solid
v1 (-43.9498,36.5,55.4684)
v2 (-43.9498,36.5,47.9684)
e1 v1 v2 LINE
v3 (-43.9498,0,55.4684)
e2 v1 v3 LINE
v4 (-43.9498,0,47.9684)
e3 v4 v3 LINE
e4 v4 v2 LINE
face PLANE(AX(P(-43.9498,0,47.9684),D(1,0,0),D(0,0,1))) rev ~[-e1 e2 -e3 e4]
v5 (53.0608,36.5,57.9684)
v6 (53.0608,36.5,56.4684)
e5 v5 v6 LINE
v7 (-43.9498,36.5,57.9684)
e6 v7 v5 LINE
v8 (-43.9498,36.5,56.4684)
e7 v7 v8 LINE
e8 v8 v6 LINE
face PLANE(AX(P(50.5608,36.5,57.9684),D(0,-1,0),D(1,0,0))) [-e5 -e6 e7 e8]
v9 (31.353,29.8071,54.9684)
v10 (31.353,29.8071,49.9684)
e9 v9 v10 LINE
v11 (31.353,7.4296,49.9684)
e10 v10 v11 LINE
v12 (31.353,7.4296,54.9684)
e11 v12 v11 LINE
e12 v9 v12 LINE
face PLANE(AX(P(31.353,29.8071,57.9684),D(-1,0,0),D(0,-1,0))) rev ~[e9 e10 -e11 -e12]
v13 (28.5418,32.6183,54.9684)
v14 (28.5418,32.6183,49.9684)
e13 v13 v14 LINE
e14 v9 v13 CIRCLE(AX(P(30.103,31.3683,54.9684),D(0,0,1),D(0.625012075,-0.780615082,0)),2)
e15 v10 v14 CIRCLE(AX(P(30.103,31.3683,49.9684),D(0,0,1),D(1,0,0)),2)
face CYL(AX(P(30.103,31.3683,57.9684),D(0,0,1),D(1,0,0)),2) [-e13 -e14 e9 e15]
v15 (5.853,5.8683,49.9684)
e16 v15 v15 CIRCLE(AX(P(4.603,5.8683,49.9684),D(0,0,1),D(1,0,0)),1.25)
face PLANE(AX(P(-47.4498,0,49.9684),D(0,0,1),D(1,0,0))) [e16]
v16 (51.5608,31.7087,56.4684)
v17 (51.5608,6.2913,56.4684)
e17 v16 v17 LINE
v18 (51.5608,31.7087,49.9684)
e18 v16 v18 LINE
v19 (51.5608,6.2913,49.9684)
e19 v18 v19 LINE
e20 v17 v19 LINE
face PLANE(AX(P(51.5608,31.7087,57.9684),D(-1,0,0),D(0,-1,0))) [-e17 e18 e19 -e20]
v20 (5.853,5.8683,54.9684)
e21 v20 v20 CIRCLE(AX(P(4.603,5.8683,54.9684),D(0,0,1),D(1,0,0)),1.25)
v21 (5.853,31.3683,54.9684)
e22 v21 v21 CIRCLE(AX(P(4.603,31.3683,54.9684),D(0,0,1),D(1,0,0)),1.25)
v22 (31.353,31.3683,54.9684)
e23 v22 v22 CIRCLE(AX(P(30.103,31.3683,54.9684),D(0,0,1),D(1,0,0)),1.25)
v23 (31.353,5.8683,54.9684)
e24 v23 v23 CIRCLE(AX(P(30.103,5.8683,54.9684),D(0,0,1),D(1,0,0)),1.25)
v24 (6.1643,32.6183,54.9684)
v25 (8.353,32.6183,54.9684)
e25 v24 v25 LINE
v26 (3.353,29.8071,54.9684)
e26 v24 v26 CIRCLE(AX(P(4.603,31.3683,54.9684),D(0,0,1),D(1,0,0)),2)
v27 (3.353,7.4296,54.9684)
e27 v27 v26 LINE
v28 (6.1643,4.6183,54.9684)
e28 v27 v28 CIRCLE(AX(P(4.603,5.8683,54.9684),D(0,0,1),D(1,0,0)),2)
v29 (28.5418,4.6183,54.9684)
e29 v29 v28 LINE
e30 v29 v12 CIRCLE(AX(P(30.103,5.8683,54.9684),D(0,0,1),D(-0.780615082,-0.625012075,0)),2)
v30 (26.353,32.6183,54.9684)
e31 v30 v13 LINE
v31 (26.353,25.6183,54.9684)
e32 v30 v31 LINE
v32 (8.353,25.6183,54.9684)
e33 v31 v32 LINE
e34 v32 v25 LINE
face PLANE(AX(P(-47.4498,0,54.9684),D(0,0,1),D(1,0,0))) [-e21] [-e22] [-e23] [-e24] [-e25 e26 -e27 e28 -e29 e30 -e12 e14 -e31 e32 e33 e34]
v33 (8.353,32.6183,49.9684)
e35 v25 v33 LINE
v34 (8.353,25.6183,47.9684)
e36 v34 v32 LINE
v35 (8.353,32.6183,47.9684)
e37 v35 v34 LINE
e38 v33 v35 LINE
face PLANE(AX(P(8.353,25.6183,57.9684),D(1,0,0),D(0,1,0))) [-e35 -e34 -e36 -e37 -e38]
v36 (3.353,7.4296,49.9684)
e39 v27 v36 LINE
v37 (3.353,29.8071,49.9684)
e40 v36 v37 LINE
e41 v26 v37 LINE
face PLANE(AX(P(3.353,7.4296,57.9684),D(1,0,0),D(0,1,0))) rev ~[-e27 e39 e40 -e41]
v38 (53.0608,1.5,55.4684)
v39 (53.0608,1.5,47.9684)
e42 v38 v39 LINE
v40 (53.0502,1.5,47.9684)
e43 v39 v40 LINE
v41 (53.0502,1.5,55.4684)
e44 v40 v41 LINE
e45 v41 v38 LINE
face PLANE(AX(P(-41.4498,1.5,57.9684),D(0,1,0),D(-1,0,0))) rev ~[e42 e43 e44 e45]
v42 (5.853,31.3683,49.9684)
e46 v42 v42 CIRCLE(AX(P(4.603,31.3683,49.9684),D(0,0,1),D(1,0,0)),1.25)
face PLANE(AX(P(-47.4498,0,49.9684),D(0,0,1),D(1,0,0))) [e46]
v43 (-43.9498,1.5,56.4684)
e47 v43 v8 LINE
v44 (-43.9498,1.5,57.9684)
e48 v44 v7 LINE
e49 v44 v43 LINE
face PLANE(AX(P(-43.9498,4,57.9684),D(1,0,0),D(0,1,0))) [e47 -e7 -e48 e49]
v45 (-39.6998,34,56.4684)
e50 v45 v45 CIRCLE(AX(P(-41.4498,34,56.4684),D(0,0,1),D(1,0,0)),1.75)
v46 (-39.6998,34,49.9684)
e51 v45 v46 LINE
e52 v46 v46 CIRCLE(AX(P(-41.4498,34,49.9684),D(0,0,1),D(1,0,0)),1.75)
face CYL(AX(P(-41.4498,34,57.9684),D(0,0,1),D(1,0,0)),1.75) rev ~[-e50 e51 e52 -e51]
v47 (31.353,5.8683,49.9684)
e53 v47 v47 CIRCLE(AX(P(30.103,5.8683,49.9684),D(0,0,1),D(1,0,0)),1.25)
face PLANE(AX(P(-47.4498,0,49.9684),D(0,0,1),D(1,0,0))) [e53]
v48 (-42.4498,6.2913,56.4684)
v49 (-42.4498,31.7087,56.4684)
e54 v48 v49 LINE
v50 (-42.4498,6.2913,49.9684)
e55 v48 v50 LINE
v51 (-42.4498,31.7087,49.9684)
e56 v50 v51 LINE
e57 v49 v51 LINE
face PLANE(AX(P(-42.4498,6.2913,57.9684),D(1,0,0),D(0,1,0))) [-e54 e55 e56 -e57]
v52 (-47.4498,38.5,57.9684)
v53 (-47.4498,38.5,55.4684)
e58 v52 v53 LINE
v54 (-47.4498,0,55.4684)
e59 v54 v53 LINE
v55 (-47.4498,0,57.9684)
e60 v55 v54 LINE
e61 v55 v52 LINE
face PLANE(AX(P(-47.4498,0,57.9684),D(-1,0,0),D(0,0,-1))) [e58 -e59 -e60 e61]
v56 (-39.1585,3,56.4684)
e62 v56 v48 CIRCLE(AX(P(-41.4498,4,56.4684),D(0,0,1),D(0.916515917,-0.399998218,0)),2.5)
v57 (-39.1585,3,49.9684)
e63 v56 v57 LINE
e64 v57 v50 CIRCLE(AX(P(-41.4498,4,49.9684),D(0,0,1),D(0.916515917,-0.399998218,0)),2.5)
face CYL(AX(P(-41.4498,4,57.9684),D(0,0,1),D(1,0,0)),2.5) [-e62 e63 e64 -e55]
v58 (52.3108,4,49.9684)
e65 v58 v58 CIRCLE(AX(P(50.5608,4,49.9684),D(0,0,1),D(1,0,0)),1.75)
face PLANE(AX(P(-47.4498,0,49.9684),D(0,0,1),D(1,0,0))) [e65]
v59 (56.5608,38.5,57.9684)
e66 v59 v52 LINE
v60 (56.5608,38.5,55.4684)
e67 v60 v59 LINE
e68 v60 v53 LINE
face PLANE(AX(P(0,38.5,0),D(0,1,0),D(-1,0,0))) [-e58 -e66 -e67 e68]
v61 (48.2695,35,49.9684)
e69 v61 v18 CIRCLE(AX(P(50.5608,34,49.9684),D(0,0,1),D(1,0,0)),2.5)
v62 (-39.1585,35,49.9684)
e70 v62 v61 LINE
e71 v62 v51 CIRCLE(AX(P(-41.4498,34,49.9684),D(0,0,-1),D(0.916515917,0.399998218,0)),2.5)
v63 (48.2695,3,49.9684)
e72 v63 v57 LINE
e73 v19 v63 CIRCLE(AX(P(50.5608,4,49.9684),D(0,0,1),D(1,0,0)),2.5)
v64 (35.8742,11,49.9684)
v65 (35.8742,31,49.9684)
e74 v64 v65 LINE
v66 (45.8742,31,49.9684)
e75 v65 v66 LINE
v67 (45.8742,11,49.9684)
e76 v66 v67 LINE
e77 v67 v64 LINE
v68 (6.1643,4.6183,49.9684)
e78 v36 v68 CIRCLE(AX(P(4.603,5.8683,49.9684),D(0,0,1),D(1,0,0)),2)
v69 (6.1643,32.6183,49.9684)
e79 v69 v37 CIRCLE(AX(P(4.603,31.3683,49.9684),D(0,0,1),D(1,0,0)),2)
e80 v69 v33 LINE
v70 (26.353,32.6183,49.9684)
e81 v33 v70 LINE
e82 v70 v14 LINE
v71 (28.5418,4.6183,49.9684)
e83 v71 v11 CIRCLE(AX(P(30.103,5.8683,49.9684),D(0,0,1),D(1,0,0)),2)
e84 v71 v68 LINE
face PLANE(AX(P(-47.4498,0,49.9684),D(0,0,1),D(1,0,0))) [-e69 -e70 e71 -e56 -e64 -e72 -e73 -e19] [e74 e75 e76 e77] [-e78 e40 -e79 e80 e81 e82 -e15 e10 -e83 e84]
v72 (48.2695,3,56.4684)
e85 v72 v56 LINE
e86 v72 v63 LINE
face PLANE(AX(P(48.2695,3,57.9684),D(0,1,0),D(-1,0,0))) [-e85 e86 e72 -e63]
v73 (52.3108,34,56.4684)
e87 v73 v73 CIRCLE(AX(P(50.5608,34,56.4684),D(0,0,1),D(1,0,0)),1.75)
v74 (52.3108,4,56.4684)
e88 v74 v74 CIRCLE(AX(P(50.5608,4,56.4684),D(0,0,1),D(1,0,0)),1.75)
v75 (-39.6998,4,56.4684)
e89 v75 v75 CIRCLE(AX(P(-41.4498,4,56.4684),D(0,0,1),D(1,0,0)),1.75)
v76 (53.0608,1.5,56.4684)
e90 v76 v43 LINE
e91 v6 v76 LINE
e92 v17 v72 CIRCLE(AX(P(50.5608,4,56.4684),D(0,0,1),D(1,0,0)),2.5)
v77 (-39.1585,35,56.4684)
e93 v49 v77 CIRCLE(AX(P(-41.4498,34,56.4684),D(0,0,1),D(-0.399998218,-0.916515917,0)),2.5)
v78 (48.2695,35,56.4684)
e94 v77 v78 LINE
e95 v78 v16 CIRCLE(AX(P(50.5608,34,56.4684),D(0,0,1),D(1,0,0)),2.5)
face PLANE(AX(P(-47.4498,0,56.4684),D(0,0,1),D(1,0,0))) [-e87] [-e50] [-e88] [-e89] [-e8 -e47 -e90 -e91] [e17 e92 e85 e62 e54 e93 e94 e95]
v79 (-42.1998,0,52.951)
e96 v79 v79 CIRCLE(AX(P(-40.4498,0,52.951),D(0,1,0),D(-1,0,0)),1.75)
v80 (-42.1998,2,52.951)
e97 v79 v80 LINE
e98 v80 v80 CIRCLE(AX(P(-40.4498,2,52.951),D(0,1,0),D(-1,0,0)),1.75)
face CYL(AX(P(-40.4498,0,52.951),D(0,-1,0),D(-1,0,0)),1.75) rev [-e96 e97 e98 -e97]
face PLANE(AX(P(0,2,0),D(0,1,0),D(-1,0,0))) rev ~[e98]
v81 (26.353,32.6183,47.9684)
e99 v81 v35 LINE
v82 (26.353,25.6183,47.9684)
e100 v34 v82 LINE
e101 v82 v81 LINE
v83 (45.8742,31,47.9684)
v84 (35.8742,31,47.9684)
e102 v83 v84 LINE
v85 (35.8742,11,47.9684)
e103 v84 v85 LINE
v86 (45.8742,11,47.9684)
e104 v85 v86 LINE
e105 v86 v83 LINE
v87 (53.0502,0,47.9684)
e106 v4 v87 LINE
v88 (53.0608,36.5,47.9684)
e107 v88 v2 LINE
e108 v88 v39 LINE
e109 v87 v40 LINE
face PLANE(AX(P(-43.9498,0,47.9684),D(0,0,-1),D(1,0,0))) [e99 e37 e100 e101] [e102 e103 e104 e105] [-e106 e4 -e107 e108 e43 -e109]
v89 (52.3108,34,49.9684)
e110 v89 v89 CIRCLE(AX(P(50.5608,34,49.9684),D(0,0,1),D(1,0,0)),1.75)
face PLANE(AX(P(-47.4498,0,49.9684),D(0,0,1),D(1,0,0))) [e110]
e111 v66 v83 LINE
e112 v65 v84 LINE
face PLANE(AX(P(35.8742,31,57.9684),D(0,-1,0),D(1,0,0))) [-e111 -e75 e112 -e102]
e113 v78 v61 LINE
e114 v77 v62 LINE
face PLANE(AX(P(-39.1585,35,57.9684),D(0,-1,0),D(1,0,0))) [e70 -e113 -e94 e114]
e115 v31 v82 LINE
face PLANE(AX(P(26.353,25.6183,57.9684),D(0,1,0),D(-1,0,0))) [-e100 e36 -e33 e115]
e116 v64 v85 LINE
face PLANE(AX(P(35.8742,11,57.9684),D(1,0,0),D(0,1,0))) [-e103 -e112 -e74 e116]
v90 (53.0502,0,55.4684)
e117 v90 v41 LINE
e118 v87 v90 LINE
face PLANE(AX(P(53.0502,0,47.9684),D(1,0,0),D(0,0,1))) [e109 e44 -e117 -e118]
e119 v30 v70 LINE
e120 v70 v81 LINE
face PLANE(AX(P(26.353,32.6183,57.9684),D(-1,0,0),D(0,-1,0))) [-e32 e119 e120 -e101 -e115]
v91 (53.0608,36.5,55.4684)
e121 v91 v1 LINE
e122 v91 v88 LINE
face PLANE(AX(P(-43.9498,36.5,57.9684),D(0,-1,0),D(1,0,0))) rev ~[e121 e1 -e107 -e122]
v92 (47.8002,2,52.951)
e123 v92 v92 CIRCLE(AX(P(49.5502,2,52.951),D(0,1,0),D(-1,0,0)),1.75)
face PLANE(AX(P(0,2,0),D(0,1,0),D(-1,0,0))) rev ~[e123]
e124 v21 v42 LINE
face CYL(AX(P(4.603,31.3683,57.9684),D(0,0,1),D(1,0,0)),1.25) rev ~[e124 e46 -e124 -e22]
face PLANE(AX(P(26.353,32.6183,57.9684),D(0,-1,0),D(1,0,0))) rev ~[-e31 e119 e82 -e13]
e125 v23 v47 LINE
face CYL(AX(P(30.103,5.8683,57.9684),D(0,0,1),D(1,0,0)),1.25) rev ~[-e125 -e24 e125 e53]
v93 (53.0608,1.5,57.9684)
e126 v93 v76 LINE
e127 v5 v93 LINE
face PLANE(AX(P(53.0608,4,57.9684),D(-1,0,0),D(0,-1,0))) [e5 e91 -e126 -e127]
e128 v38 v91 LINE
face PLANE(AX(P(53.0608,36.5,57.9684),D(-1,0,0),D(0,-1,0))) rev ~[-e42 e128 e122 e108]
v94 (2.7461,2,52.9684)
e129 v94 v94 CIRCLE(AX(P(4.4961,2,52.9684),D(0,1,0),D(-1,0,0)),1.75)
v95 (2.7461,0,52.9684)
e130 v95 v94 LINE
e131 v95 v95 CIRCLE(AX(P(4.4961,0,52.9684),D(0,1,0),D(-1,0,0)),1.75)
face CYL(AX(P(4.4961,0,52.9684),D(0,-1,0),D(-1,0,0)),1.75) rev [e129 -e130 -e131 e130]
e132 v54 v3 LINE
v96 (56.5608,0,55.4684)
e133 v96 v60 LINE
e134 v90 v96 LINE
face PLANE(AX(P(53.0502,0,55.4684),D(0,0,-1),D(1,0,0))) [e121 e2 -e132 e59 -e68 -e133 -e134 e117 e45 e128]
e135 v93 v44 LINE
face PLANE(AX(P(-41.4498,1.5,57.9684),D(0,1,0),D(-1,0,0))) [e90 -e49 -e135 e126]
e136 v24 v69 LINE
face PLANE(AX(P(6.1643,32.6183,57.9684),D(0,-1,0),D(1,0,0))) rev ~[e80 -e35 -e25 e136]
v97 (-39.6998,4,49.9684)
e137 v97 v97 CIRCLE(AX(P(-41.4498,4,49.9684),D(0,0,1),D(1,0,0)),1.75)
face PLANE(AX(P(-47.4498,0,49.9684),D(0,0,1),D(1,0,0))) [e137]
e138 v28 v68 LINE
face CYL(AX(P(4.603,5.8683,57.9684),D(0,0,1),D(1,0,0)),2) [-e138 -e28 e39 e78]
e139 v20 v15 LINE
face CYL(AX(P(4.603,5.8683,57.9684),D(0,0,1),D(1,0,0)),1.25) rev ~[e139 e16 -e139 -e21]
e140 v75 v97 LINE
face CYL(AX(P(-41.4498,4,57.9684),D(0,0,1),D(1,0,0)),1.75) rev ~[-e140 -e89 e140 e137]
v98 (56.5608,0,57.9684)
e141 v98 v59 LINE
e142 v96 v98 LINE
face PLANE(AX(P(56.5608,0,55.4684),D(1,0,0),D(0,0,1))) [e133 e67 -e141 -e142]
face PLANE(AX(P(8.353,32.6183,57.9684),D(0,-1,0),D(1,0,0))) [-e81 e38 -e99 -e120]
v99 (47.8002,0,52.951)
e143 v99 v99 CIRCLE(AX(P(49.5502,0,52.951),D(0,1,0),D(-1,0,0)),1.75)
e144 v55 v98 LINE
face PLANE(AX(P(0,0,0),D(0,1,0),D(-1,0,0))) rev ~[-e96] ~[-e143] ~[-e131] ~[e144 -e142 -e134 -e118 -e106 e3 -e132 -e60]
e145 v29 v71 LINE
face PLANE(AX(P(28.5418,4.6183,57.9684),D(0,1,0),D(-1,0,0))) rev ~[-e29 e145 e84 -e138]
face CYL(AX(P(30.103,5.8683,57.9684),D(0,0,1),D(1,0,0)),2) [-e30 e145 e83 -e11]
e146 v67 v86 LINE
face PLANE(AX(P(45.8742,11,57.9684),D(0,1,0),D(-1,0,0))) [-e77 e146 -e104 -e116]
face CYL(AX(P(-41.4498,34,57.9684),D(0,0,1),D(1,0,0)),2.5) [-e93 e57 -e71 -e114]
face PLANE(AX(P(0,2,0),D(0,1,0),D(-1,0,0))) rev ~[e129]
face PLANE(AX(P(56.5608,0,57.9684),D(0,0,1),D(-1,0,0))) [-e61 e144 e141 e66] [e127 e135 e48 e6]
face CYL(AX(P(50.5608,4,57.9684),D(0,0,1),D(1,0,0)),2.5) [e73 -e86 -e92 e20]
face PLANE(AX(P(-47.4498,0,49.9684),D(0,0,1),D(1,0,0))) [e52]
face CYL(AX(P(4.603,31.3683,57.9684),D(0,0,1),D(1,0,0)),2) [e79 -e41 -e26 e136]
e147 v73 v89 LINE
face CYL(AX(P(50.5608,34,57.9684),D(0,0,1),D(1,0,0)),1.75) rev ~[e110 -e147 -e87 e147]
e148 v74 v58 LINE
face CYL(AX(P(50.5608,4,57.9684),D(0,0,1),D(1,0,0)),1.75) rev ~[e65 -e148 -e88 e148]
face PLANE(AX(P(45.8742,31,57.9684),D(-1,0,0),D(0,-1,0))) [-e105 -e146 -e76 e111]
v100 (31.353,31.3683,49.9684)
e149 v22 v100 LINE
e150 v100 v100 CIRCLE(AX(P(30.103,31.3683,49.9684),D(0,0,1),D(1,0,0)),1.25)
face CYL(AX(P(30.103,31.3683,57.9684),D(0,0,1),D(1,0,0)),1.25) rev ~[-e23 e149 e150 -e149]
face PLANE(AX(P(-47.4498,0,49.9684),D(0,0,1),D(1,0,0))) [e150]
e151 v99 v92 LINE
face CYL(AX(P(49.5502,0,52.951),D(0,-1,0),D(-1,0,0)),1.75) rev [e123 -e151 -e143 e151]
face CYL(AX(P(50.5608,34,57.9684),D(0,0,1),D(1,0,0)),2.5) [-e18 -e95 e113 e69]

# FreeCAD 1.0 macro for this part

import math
import FreeCAD as App
import Part
import Sketcher


def add_polygon(sketch, points):
    """Adds a closed chain of lines whose ends are joined by coincident constraints."""
    first, n = sketch.GeometryCount, len(points)
    for a, b in zip(points, points[1:] + points[:1]):
        sketch.addGeometry(Part.LineSegment(App.Vector(*a, 0), App.Vector(*b, 0)), False)
    for i in range(n):
        sketch.addConstraint(Sketcher.Constraint("Coincident", first + i, 2, first + (i + 1) % n, 1))

doc = App.newDocument("Part")
body = doc.addObject("PartDesign::Body", "Body")

# Sketch on XZ plane
sketch1 = body.newObject("Sketcher::SketchObject", "Sketch")
sketch1.AttachmentSupport = (doc.getObject("XZ_Plane"), [""])
sketch1.MapMode = "FlatFace"
add_polygon(sketch1, [(56.6, 58), (56.6, 55.5), (-47.4, 55.5), (-47.4, 58)])  # lines 0-3
sketch1.addConstraint([
    Sketcher.Constraint("Vertical", 0),
    Sketcher.Constraint("Horizontal", 1),
    Sketcher.Constraint("Vertical", 2),
    Sketcher.Constraint("Horizontal", 3),
    Sketcher.Constraint("DistanceY", 0, 2, 0, 1, 2.5),
    Sketcher.Constraint("DistanceX", 1, 2, 1, 1, 104.0106),
    Sketcher.Constraint("DistanceX", -1, 1, 0, 2, 56.5608),
    Sketcher.Constraint("DistanceY", -1, 1, 0, 2, 55.4684),
])
pad1 = body.newObject("PartDesign::Pad", "Pad")
pad1.Profile = sketch1
pad1.Length = 38.5
pad1.Reversed = True

# Sketch on XZ plane
sketch2 = body.newObject("Sketcher::SketchObject", "Sketch001")
sketch2.AttachmentSupport = (doc.getObject("XZ_Plane"), [""])
sketch2.MapMode = "FlatFace"
add_polygon(sketch2, [(-43.9, 55.5), (53.1, 55.5), (53.1, 48), (-43.9, 48)])  # lines 0-3
sketch2.addGeometry(Part.Circle(App.Vector(49.6, 53, 0), App.Vector(0, 0, 1), 1.8), False)  # 4
sketch2.addGeometry(Part.Circle(App.Vector(-40.4, 53, 0), App.Vector(0, 0, 1), 1.8), False)  # 5
sketch2.addGeometry(Part.Circle(App.Vector(4.5, 53, 0), App.Vector(0, 0, 1), 1.8), False)  # 6
sketch2.addConstraint([
    Sketcher.Constraint("Horizontal", 0),
    Sketcher.Constraint("Vertical", 1),
    Sketcher.Constraint("Horizontal", 2),
    Sketcher.Constraint("Vertical", 3),
    Sketcher.Constraint("Equal", 4, 5),
    Sketcher.Constraint("Equal", 5, 6),
    Sketcher.Constraint("Horizontal", 4, 3, 5, 3),
    Sketcher.Constraint("Diameter", 4, 3.5),
    Sketcher.Constraint("DistanceY", 1, 2, 6, 3, 5.0),
    Sketcher.Constraint("DistanceX", 4, 3, 0, 2, 3.5),
    Sketcher.Constraint("DistanceY", 6, 3, 0, 2, 2.5),
    Sketcher.Constraint("DistanceX", 2, 2, 5, 3, 3.5),
    Sketcher.Constraint("DistanceX", 0, 1, 0, 2, 97.0),
    Sketcher.Constraint("DistanceY", -1, 1, 4, 3, 52.951),
    Sketcher.Constraint("DistanceX", -1, 1, 6, 3, 4.496),
    Sketcher.Constraint("DistanceX", 5, 3, 6, 3, 44.946),
    Sketcher.Constraint("DistanceY", -1, 1, 6, 3, 52.9684),
])
pad2 = body.newObject("PartDesign::Pad", "Pad001")
pad2.Profile = sketch2
pad2.Length = 2.5
pad2.Reversed = True

# Sketch on XY plane
sketch3 = body.newObject("Sketcher::SketchObject", "Sketch002")
sketch3.AttachmentSupport = (doc.getObject("XY_Plane"), [""])
sketch3.MapMode = "FlatFace"
sketch3.AttachmentOffset = App.Placement(App.Vector(0, 0, 57.9684), App.Rotation())
add_polygon(sketch3, [(-44, 36), (-44, 2), (53, 2), (53, 36)])  # lines 0-3
sketch3.addConstraint([
    Sketcher.Constraint("Vertical", 0),
    Sketcher.Constraint("Horizontal", 1),
    Sketcher.Constraint("Vertical", 2),
    Sketcher.Constraint("Horizontal", 3),
    Sketcher.Constraint("DistanceY", -1, 1, 0, 2, 1.5),
    Sketcher.Constraint("DistanceY", 0, 2, 0, 1, 35.0),
    Sketcher.Constraint("DistanceX", 1, 1, 1, 2, 97.0106),
    Sketcher.Constraint("DistanceX", 0, 2, -1, 1, 43.9498),
])
pad3 = body.newObject("PartDesign::Pad", "Pad002")
pad3.Profile = sketch3
pad3.Length = 10
pad3.Reversed = True

# Sketch on XY plane
sketch4 = body.newObject("Sketcher::SketchObject", "Sketch003")
sketch4.AttachmentSupport = (doc.getObject("XY_Plane"), [""])
sketch4.MapMode = "FlatFace"
sketch4.AttachmentOffset = App.Placement(App.Vector(0, 0, 57.9684), App.Rotation())
sketch4.addGeometry([
    Part.LineSegment(App.Vector(48.3, 35, 0), App.Vector(-39.2, 35, 0)),  # 0
    Part.ArcOfCircle(Part.Circle(App.Vector(-41.4, 34, 0), App.Vector(0, 0, 1), 2.5), math.radians(-114), math.radians(24)),  # 1
    Part.LineSegment(App.Vector(-42.4, 31.7, 0), App.Vector(-42.4, 6.3, 0)),  # 2
    Part.ArcOfCircle(Part.Circle(App.Vector(-41.4, 4, 0), App.Vector(0, 0, 1), 2.5), math.radians(-24), math.radians(114)),  # 3
    Part.LineSegment(App.Vector(-39.2, 3, 0), App.Vector(48.3, 3, 0)),  # 4
    Part.ArcOfCircle(Part.Circle(App.Vector(50.6, 4, 0), App.Vector(0, 0, 1), 2.5), math.radians(66), math.radians(204)),  # 5
    Part.LineSegment(App.Vector(51.6, 6.3, 0), App.Vector(51.6, 31.7, 0)),  # 6
    Part.ArcOfCircle(Part.Circle(App.Vector(50.6, 34, 0), App.Vector(0, 0, 1), 2.5), math.radians(156), math.radians(294)),  # 7
], False)
sketch4.addConstraint([
    Sketcher.Constraint("Coincident", 0, 2, 1, 2),
    Sketcher.Constraint("Coincident", 1, 1, 2, 1),
    Sketcher.Constraint("Coincident", 2, 2, 3, 2),
    Sketcher.Constraint("Coincident", 3, 1, 4, 1),
    Sketcher.Constraint("Coincident", 4, 2, 5, 2),
    Sketcher.Constraint("Coincident", 5, 1, 6, 1),
    Sketcher.Constraint("Coincident", 6, 2, 7, 2),
    Sketcher.Constraint("Coincident", 7, 1, 0, 1),
    Sketcher.Constraint("Horizontal", 0),
    Sketcher.Constraint("Vertical", 2),
    Sketcher.Constraint("Horizontal", 4),
    Sketcher.Constraint("Vertical", 6),
    Sketcher.Constraint("Equal", 1, 3),
    Sketcher.Constraint("Equal", 3, 5),
    Sketcher.Constraint("Equal", 5, 7),
    Sketcher.Constraint("Horizontal", 3, 3, 5, 3),
    Sketcher.Constraint("Horizontal", 1, 3, 7, 3),
    Sketcher.Constraint("Horizontal", 2, 2, 5, 1),
    Sketcher.Constraint("Horizontal", 1, 1, 6, 2),
    Sketcher.Constraint("Vertical", 1, 3, 3, 3),
    Sketcher.Constraint("Vertical", 0, 2, 3, 1),
    Sketcher.Constraint("Radius", 1, 2.5),
    Sketcher.Constraint("DistanceY", -1, 1, 3, 3, 4.0),
    Sketcher.Constraint("DistanceY", -1, 1, 1, 3, 34.0),
    Sketcher.Constraint("DistanceY", -1, 1, 0, 2, 35.0),
    Sketcher.Constraint("DistanceX", 1, 1, 1, 3, 1.0),
    Sketcher.Constraint("DistanceX", 0, 2, 0, 1, 87.428),
    Sketcher.Constraint("DistanceX", 1, 3, -1, 1, 41.4498),
])
pocket1 = body.newObject("PartDesign::Pocket", "Pocket")
pocket1.Profile = sketch4
pocket1.Length = 8

# Sketch on XY plane
sketch5 = body.newObject("Sketcher::SketchObject", "Sketch004")
sketch5.AttachmentSupport = (doc.getObject("XY_Plane"), [""])
sketch5.MapMode = "FlatFace"
sketch5.AttachmentOffset = App.Placement(App.Vector(0, 0, 57.9684), App.Rotation())
add_polygon(sketch5, [(-43.9, 36.5), (-43.9, 1.5), (53.1, 1.5), (53.1, 36.5)])  # lines 0-3
sketch5.addGeometry(Part.LineSegment(App.Vector(-39.2, 35, 0), App.Vector(48.3, 35, 0)), False)  # 4
sketch5.addGeometry(Part.ArcOfCircle(Part.Circle(App.Vector(50.6, 34, 0), App.Vector(0, 0, 1), 2.5), math.radians(156), math.radians(294)), False)  # 5
sketch5.addGeometry(Part.LineSegment(App.Vector(51.6, 31.7, 0), App.Vector(51.6, 6.3, 0)), False)  # 6
sketch5.addGeometry(Part.ArcOfCircle(Part.Circle(App.Vector(50.6, 4, 0), App.Vector(0, 0, 1), 2.5), math.radians(66), math.radians(204)), False)  # 7
sketch5.addGeometry(Part.LineSegment(App.Vector(48.3, 3, 0), App.Vector(-39.2, 3, 0)), False)  # 8
sketch5.addGeometry(Part.ArcOfCircle(Part.Circle(App.Vector(-41.4, 4, 0), App.Vector(0, 0, 1), 2.5), math.radians(-24), math.radians(114)), False)  # 9
sketch5.addGeometry(Part.LineSegment(App.Vector(-42.4, 6.3, 0), App.Vector(-42.4, 31.7, 0)), False)  # 10
sketch5.addGeometry(Part.ArcOfCircle(Part.Circle(App.Vector(-41.4, 34, 0), App.Vector(0, 0, 1), 2.5), math.radians(-114), math.radians(24)), False)  # 11
sketch5.addConstraint([
    Sketcher.Constraint("Coincident", 4, 2, 5, 1),
    Sketcher.Constraint("Coincident", 5, 2, 6, 1),
    Sketcher.Constraint("Coincident", 6, 2, 7, 1),
    Sketcher.Constraint("Coincident", 7, 2, 8, 1),
    Sketcher.Constraint("Coincident", 8, 2, 9, 1),
    Sketcher.Constraint("Coincident", 9, 2, 10, 1),
    Sketcher.Constraint("Coincident", 10, 2, 11, 1),
    Sketcher.Constraint("Coincident", 11, 2, 4, 1),
    Sketcher.Constraint("Vertical", 0),
    Sketcher.Constraint("Horizontal", 1),
    Sketcher.Constraint("Vertical", 2),
    Sketcher.Constraint("Horizontal", 3),
    Sketcher.Constraint("Horizontal", 4),
    Sketcher.Constraint("Vertical", 6),
    Sketcher.Constraint("Horizontal", 8),
    Sketcher.Constraint("Vertical", 10),
    Sketcher.Constraint("Equal", 5, 7),
    Sketcher.Constraint("Equal", 7, 9),
    Sketcher.Constraint("Equal", 9, 11),
    Sketcher.Constraint("Horizontal", 7, 3, 9, 3),
    Sketcher.Constraint("Horizontal", 5, 3, 11, 3),
    Sketcher.Constraint("Horizontal", 6, 2, 9, 2),
    Sketcher.Constraint("Horizontal", 5, 2, 10, 2),
    Sketcher.Constraint("Vertical", 5, 3, 7, 3),
    Sketcher.Constraint("Vertical", 4, 2, 7, 2),
    Sketcher.Constraint("Radius", 5, 2.5),
    Sketcher.Constraint("DistanceY", -1, 1, 7, 3, 4.0),
    Sketcher.Constraint("DistanceY", -1, 1, 0, 2, 1.5),
    Sketcher.Constraint("DistanceX", 0, 2, 9, 3, 2.5),
    Sketcher.Constraint("DistanceX", 7, 3, 1, 2, 2.5),
    Sketcher.Constraint("DistanceY", 5, 3, 2, 2, 2.5),
    Sketcher.Constraint("DistanceY", 4, 2, 2, 2, 1.5),
    Sketcher.Constraint("DistanceX", 5, 2, 2, 2, 1.5),
    Sketcher.Constraint("DistanceY", 0, 2, 0, 1, 35.0),
    Sketcher.Constraint("DistanceX", 4, 1, 4, 2, 87.428),
    Sketcher.Constraint("DistanceX", -1, 1, 5, 3, 50.5608),
])
pocket2 = body.newObject("PartDesign::Pocket", "Pocket001")
pocket2.Profile = sketch5
pocket2.Length = 1.5

# Sketch on XY plane
sketch6 = body.newObject("Sketcher::SketchObject", "Sketch005")
sketch6.AttachmentSupport = (doc.getObject("XY_Plane"), [""])
sketch6.MapMode = "FlatFace"
sketch6.AttachmentOffset = App.Placement(App.Vector(0, 0, 57.9684), App.Rotation())
sketch6.addGeometry([
    Part.Circle(App.Vector(-41.4, 34, 0), App.Vector(0, 0, 1), 1.8),
    Part.Circle(App.Vector(-41.4, 4, 0), App.Vector(0, 0, 1), 1.8),
    Part.Circle(App.Vector(50.6, 34, 0), App.Vector(0, 0, 1), 1.8),
    Part.Circle(App.Vector(50.6, 4, 0), App.Vector(0, 0, 1), 1.8),
], False)
sketch6.addConstraint([
    Sketcher.Constraint("Equal", 0, 1),
    Sketcher.Constraint("Equal", 1, 2),
    Sketcher.Constraint("Equal", 2, 3),
    Sketcher.Constraint("Horizontal", 0, 3, 2, 3),
    Sketcher.Constraint("Horizontal", 1, 3, 3, 3),
    Sketcher.Constraint("Vertical", 0, 3, 1, 3),
    Sketcher.Constraint("Vertical", 2, 3, 3, 3),
    Sketcher.Constraint("Diameter", 0, 3.5),
    Sketcher.Constraint("DistanceY", -1, 1, 1, 3, 4.0),
    Sketcher.Constraint("DistanceY", -1, 1, 0, 3, 34.0),
    Sketcher.Constraint("DistanceX", 0, 3, -1, 1, 41.4498),
    Sketcher.Constraint("DistanceX", -1, 1, 2, 3, 50.5608),
])
pocket3 = body.newObject("PartDesign::Pocket", "Pocket002")
pocket3.Profile = sketch6
pocket3.Length = 8

# Sketch on XY plane
sketch7 = body.newObject("Sketcher::SketchObject", "Sketch006")
sketch7.AttachmentSupport = (doc.getObject("XY_Plane"), [""])
sketch7.MapMode = "FlatFace"
sketch7.AttachmentOffset = App.Placement(App.Vector(0, 0, 57.9684), App.Rotation())
add_polygon(sketch7, [(46, 31), (36, 31), (36, 11), (46, 11)])  # lines 0-3
sketch7.addConstraint([
    Sketcher.Constraint("Horizontal", 0),
    Sketcher.Constraint("Vertical", 1),
    Sketcher.Constraint("Horizontal", 2),
    Sketcher.Constraint("Vertical", 3),
    Sketcher.Constraint("DistanceX", 0, 2, 0, 1, 10.0),
    Sketcher.Constraint("DistanceY", 1, 2, 1, 1, 20.0),
    Sketcher.Constraint("DistanceY", -1, 1, 0, 2, 31.0),
    Sketcher.Constraint("DistanceX", -1, 1, 0, 2, 35.8742),
])
pocket4 = body.newObject("PartDesign::Pocket", "Pocket003")
pocket4.Profile = sketch7
pocket4.Type = "ThroughAll"

# Sketch on XZ plane
sketch8 = body.newObject("Sketcher::SketchObject", "Sketch007")
sketch8.AttachmentSupport = (doc.getObject("XZ_Plane"), [""])
sketch8.MapMode = "FlatFace"
sketch8.addGeometry([
    Part.Circle(App.Vector(49.6, 53, 0), App.Vector(0, 0, 1), 1.8),
    Part.Circle(App.Vector(-40.4, 53, 0), App.Vector(0, 0, 1), 1.8),
    Part.Circle(App.Vector(4.5, 53, 0), App.Vector(0, 0, 1), 1.8),
], False)
sketch8.addConstraint([
    Sketcher.Constraint("Equal", 0, 1),
    Sketcher.Constraint("Equal", 1, 2),
    Sketcher.Constraint("Horizontal", 0, 3, 1, 3),
    Sketcher.Constraint("Diameter", 0, 3.5),
    Sketcher.Constraint("DistanceX", 1, 3, 0, 3, 90.0),
    Sketcher.Constraint("DistanceY", -1, 1, 0, 3, 52.951),
    Sketcher.Constraint("DistanceX", -1, 1, 2, 3, 4.496),
    Sketcher.Constraint("DistanceX", 1, 3, 2, 3, 44.946),
    Sketcher.Constraint("DistanceY", -1, 1, 2, 3, 52.9684),
])
pocket5 = body.newObject("PartDesign::Pocket", "Pocket004")
pocket5.Profile = sketch8
pocket5.Length = 2

# Sketch on XY plane
sketch9 = body.newObject("Sketcher::SketchObject", "Sketch008")
sketch9.AttachmentSupport = (doc.getObject("XY_Plane"), [""])
sketch9.MapMode = "FlatFace"
sketch9.AttachmentOffset = App.Placement(App.Vector(0, 0, 57.9684), App.Rotation())
sketch9.addGeometry([
    Part.LineSegment(App.Vector(31.4, 7.4, 0), App.Vector(31.4, 29.8, 0)),  # 0
    Part.ArcOfCircle(Part.Circle(App.Vector(30.1, 31.4, 0), App.Vector(0, 0, 1), 2), math.radians(-51), math.radians(141)),  # 1
    Part.LineSegment(App.Vector(28.5, 32.6, 0), App.Vector(26.4, 32.6, 0)),  # 2
    Part.LineSegment(App.Vector(26.4, 32.6, 0), App.Vector(26.4, 25.6, 0)),  # 3
    Part.LineSegment(App.Vector(26.4, 25.6, 0), App.Vector(8.4, 25.6, 0)),  # 4
    Part.LineSegment(App.Vector(8.4, 25.6, 0), App.Vector(8.4, 32.6, 0)),  # 5
    Part.LineSegment(App.Vector(8.4, 32.6, 0), App.Vector(6.2, 32.6, 0)),  # 6
    Part.ArcOfCircle(Part.Circle(App.Vector(4.6, 31.4, 0), App.Vector(0, 0, 1), 2), math.radians(39), math.radians(231)),  # 7
    Part.LineSegment(App.Vector(3.4, 29.8, 0), App.Vector(3.4, 7.4, 0)),  # 8
    Part.ArcOfCircle(Part.Circle(App.Vector(4.6, 5.9, 0), App.Vector(0, 0, 1), 2), math.radians(129), math.radians(321)),  # 9
    Part.LineSegment(App.Vector(6.2, 4.6, 0), App.Vector(28.5, 4.6, 0)),  # 10
    Part.ArcOfCircle(Part.Circle(App.Vector(30.1, 5.9, 0), App.Vector(0, 0, 1), 2), math.radians(-141), math.radians(51)),  # 11
    Part.Circle(App.Vector(30.1, 5.9, 0), App.Vector(0, 0, 1), 1.2),  # 12
    Part.Circle(App.Vector(4.6, 5.9, 0), App.Vector(0, 0, 1), 1.2),  # 13
    Part.Circle(App.Vector(4.6, 31.4, 0), App.Vector(0, 0, 1), 1.2),  # 14
    Part.Circle(App.Vector(30.1, 31.4, 0), App.Vector(0, 0, 1), 1.2),  # 15
], False)
sketch9.addConstraint([
    Sketcher.Constraint("Coincident", 0, 2, 1, 1),
    Sketcher.Constraint("Coincident", 1, 2, 2, 1),
    Sketcher.Constraint("Coincident", 2, 2, 3, 1),
    Sketcher.Constraint("Coincident", 3, 2, 4, 1),
    Sketcher.Constraint("Coincident", 4, 2, 5, 1),
    Sketcher.Constraint("Coincident", 5, 2, 6, 1),
    Sketcher.Constraint("Coincident", 6, 2, 7, 1),
    Sketcher.Constraint("Coincident", 7, 2, 8, 1),
    Sketcher.Constraint("Coincident", 8, 2, 9, 1),
    Sketcher.Constraint("Coincident", 9, 2, 10, 1),
    Sketcher.Constraint("Coincident", 10, 2, 11, 1),
    Sketcher.Constraint("Coincident", 11, 2, 0, 1),
    Sketcher.Constraint("Vertical", 0),
    Sketcher.Constraint("Horizontal", 2),
    Sketcher.Constraint("Vertical", 3),
    Sketcher.Constraint("Horizontal", 4),
    Sketcher.Constraint("Vertical", 5),
    Sketcher.Constraint("Horizontal", 6),
    Sketcher.Constraint("Vertical", 8),
    Sketcher.Constraint("Horizontal", 10),
    Sketcher.Constraint("Coincident", 12, 3, 11, 3),
    Sketcher.Constraint("Coincident", 13, 3, 9, 3),
    Sketcher.Constraint("Coincident", 14, 3, 7, 3),
    Sketcher.Constraint("Coincident", 15, 3, 1, 3),
    Sketcher.Constraint("Equal", 1, 7),
    Sketcher.Constraint("Equal", 7, 9),
    Sketcher.Constraint("Equal", 9, 11),
    Sketcher.Constraint("Equal", 12, 13),
    Sketcher.Constraint("Equal", 13, 14),
    Sketcher.Constraint("Equal", 14, 15),
    Sketcher.Constraint("Horizontal", 1, 3, 7, 3),
    Sketcher.Constraint("Horizontal", 9, 3, 11, 3),
    Sketcher.Constraint("Horizontal", 2, 2, 5, 2),
    Sketcher.Constraint("Horizontal", 0, 2, 7, 2),
    Sketcher.Constraint("Horizontal", 8, 2, 11, 2),
    Sketcher.Constraint("Vertical", 7, 3, 9, 3),
    Sketcher.Constraint("Vertical", 6, 2, 9, 2),
    Sketcher.Constraint("Equal", 2, 6),
    Sketcher.Constraint("Equal", 10, 0),
    Sketcher.Constraint("Radius", 1, 2.0),
    Sketcher.Constraint("Diameter", 12, 2.5),
    Sketcher.Constraint("DistanceY", 3, 2, 3, 1, 7.0),
    Sketcher.Constraint("DistanceX", 2, 2, 0, 2, 5.0),
    Sketcher.Constraint("DistanceX", 4, 2, 4, 1, 18.0),
    Sketcher.Constraint("DistanceY", 9, 2, 4, 2, 21.0),
    Sketcher.Constraint("DistanceX", 7, 3, 1, 3, 25.5),
    Sketcher.Constraint("DistanceX", -1, 1, 1, 3, 30.103),
    Sketcher.Constraint("DistanceY", -1, 1, 0, 2, 29.807),
])
pad4 = body.newObject("PartDesign::Pad", "Pad003")
pad4.Profile = sketch9
pad4.Length = 8.5
pad4.Reversed = True

# Sketch on XY plane
sketch10 = body.newObject("Sketcher::SketchObject", "Sketch009")
sketch10.AttachmentSupport = (doc.getObject("XY_Plane"), [""])
sketch10.MapMode = "FlatFace"
sketch10.AttachmentOffset = App.Placement(App.Vector(0, 0, 57.9684), App.Rotation())
sketch10.addGeometry([
    Part.LineSegment(App.Vector(31.4, 7.4, 0), App.Vector(31.4, 29.8, 0)),  # 0
    Part.ArcOfCircle(Part.Circle(App.Vector(30.1, 31.4, 0), App.Vector(0, 0, 1), 2), math.radians(-51), math.radians(141)),  # 1
    Part.LineSegment(App.Vector(28.5, 32.6, 0), App.Vector(26.4, 32.6, 0)),  # 2
    Part.LineSegment(App.Vector(26.4, 32.6, 0), App.Vector(26.4, 25.6, 0)),  # 3
    Part.LineSegment(App.Vector(26.4, 25.6, 0), App.Vector(8.4, 25.6, 0)),  # 4
    Part.LineSegment(App.Vector(8.4, 25.6, 0), App.Vector(8.4, 32.6, 0)),  # 5
    Part.LineSegment(App.Vector(8.4, 32.6, 0), App.Vector(6.2, 32.6, 0)),  # 6
    Part.ArcOfCircle(Part.Circle(App.Vector(4.6, 31.4, 0), App.Vector(0, 0, 1), 2), math.radians(39), math.radians(231)),  # 7
    Part.LineSegment(App.Vector(3.4, 29.8, 0), App.Vector(3.4, 7.4, 0)),  # 8
    Part.ArcOfCircle(Part.Circle(App.Vector(4.6, 5.9, 0), App.Vector(0, 0, 1), 2), math.radians(129), math.radians(321)),  # 9
    Part.LineSegment(App.Vector(6.2, 4.6, 0), App.Vector(28.5, 4.6, 0)),  # 10
    Part.ArcOfCircle(Part.Circle(App.Vector(30.1, 5.9, 0), App.Vector(0, 0, 1), 2), math.radians(-141), math.radians(51)),  # 11
    Part.Circle(App.Vector(4.6, 31.4, 0), App.Vector(0, 0, 1), 1.2),  # 12
], False)
sketch10.addConstraint([
    Sketcher.Constraint("Coincident", 0, 2, 1, 1),
    Sketcher.Constraint("Coincident", 1, 2, 2, 1),
    Sketcher.Constraint("Coincident", 2, 2, 3, 1),
    Sketcher.Constraint("Coincident", 3, 2, 4, 1),
    Sketcher.Constraint("Coincident", 4, 2, 5, 1),
    Sketcher.Constraint("Coincident", 5, 2, 6, 1),
    Sketcher.Constraint("Coincident", 6, 2, 7, 1),
    Sketcher.Constraint("Coincident", 7, 2, 8, 1),
    Sketcher.Constraint("Coincident", 8, 2, 9, 1),
    Sketcher.Constraint("Coincident", 9, 2, 10, 1),
    Sketcher.Constraint("Coincident", 10, 2, 11, 1),
    Sketcher.Constraint("Coincident", 11, 2, 0, 1),
    Sketcher.Constraint("Vertical", 0),
    Sketcher.Constraint("Horizontal", 2),
    Sketcher.Constraint("Vertical", 3),
    Sketcher.Constraint("Horizontal", 4),
    Sketcher.Constraint("Vertical", 5),
    Sketcher.Constraint("Horizontal", 6),
    Sketcher.Constraint("Vertical", 8),
    Sketcher.Constraint("Horizontal", 10),
    Sketcher.Constraint("Coincident", 12, 3, 7, 3),
    Sketcher.Constraint("Equal", 1, 7),
    Sketcher.Constraint("Equal", 7, 9),
    Sketcher.Constraint("Equal", 9, 11),
    Sketcher.Constraint("Horizontal", 1, 3, 7, 3),
    Sketcher.Constraint("Horizontal", 9, 3, 11, 3),
    Sketcher.Constraint("Horizontal", 2, 2, 5, 2),
    Sketcher.Constraint("Horizontal", 0, 2, 7, 2),
    Sketcher.Constraint("Horizontal", 8, 2, 11, 2),
    Sketcher.Constraint("Vertical", 7, 3, 9, 3),
    Sketcher.Constraint("Vertical", 6, 2, 9, 2),
    Sketcher.Constraint("Equal", 2, 6),
    Sketcher.Constraint("Equal", 10, 0),
    Sketcher.Constraint("Radius", 1, 2.0),
    Sketcher.Constraint("Diameter", 12, 2.5),
    Sketcher.Constraint("DistanceY", 3, 2, 3, 1, 7.0),
    Sketcher.Constraint("DistanceX", 2, 2, 0, 2, 5.0),
    Sketcher.Constraint("DistanceX", 4, 2, 4, 1, 18.0),
    Sketcher.Constraint("DistanceY", 9, 2, 4, 2, 21.0),
    Sketcher.Constraint("DistanceX", 7, 3, 1, 3, 25.5),
    Sketcher.Constraint("DistanceX", -1, 1, 1, 3, 30.103),
    Sketcher.Constraint("DistanceY", -1, 1, 0, 2, 29.807),
])
pocket6 = body.newObject("PartDesign::Pocket", "Pocket005")
pocket6.Profile = sketch10
pocket6.Length = 3

# Sketch on XY plane
sketch11 = body.newObject("Sketcher::SketchObject", "Sketch010")
sketch11.AttachmentSupport = (doc.getObject("XY_Plane"), [""])
sketch11.MapMode = "FlatFace"
sketch11.AttachmentOffset = App.Placement(App.Vector(0, 0, 57.9684), App.Rotation())
add_polygon(sketch11, [(26, 26), (26, 33), (8, 33), (8, 26)])  # lines 0-3
sketch11.addConstraint([
    Sketcher.Constraint("Vertical", 0),
    Sketcher.Constraint("Horizontal", 1),
    Sketcher.Constraint("Vertical", 2),
    Sketcher.Constraint("Horizontal", 3),
    Sketcher.Constraint("DistanceY", 0, 1, 0, 2, 7.0),
    Sketcher.Constraint("DistanceX", 1, 2, 1, 1, 18.0),
    Sketcher.Constraint("DistanceX", -1, 1, 0, 2, 26.353),
    Sketcher.Constraint("DistanceY", -1, 1, 0, 2, 32.6183),
])
pocket7 = body.newObject("PartDesign::Pocket", "Pocket006")
pocket7.Profile = sketch11
pocket7.Type = "ThroughAll"

doc.recompute()
